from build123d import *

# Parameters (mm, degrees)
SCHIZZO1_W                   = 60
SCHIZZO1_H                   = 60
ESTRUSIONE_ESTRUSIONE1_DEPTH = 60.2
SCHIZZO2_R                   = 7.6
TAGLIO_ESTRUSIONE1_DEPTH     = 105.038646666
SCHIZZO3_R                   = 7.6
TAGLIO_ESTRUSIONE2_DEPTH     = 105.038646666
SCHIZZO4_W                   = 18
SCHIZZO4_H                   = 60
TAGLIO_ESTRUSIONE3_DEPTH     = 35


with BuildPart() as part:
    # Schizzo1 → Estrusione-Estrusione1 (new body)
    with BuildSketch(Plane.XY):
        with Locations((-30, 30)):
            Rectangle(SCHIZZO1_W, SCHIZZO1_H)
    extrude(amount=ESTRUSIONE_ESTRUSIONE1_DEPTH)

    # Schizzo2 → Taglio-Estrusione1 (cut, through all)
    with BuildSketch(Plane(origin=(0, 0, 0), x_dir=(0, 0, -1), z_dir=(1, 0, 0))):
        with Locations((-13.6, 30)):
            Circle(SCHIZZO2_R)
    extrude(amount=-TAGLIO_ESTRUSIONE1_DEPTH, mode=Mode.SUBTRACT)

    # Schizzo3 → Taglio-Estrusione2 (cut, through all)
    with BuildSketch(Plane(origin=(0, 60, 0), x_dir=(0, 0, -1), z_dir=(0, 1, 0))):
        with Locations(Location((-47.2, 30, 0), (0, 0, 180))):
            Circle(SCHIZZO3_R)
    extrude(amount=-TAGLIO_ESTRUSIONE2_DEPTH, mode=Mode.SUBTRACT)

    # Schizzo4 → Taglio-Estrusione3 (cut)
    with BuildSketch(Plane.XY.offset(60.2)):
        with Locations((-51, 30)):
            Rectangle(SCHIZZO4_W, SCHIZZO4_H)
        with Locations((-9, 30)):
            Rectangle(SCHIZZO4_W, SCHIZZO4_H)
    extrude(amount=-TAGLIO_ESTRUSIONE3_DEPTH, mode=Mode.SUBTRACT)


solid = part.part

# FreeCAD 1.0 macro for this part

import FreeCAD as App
import Part
import Sketcher


def add_polygon(sketch, points):
    """Adds a closed chain of lines whose ends are joined by coincident constraints."""
    first, n = sketch.GeometryCount, len(points)
    for a, b in zip(points, points[1:] + points[:1]):
        sketch.addGeometry(Part.LineSegment(App.Vector(*a, 0), App.Vector(*b, 0)), False)
    for i in range(n):
        sketch.addConstraint(Sketcher.Constraint("Coincident", first + i, 2, first + (i + 1) % n, 1))

doc = App.newDocument("Part")
params = doc.addObject("Spreadsheet::Sheet", "Params")
for row, (alias, value) in enumerate([
    ("sketch1_width", "60 mm"),
    ("pad1_length", "60.2 mm"),
    ("sketch2_diameter", "15.2 mm"),
    ("sketch3_diameter", "15.2 mm"),
    ("sketch4_width", "18 mm"),
    ("sketch4_height", "60 mm"),
    ("pocket3_length", "35 mm"),
], start=1):
    params.set(f"A{row}", alias)
    params.set(f"B{row}", "=" + value)
    params.setAlias(f"B{row}", alias)

body = doc.addObject("PartDesign::Body", "Body")

# Sketch on XY plane
sketch1 = body.newObject("Sketcher::SketchObject", "Sketch")
sketch1.AttachmentSupport = (doc.getObject("XY_Plane"), [""])
sketch1.MapMode = "FlatFace"
add_polygon(sketch1, [(-60, 60), (-60, 0), (0, 0), (0, 60)])  # lines 0-3
sketch1.addConstraint([
    Sketcher.Constraint("Vertical", 0),
    Sketcher.Constraint("Horizontal", 1),
    Sketcher.Constraint("Vertical", 2),
    Sketcher.Constraint("Horizontal", 3),
    Sketcher.Constraint("Coincident", 1, 2, -1, 1),
    Sketcher.Constraint("Equal", 3, 0),
    Sketcher.Constraint("DistanceX", 1, 1, 1, 2, 60.0),
])
sketch1.setExpression("Constraints[10]", "Params.sketch1_width")
pad1 = body.newObject("PartDesign::Pad", "Pad")
pad1.Profile = sketch1
pad1.setExpression("Length", "Params.pad1_length")

# Sketch on YZ plane
sketch2 = body.newObject("Sketcher::SketchObject", "Sketch001")
sketch2.AttachmentSupport = (doc.getObject("YZ_Plane"), [""])
sketch2.MapMode = "FlatFace"
sketch2.addGeometry(Part.Circle(App.Vector(30, 13.6, 0), App.Vector(0, 0, 1), 7.6), False)
sketch2.addConstraint([
    Sketcher.Constraint("Diameter", 0, 15.2),
    Sketcher.Constraint("DistanceX", -1, 1, 0, 3, 30.0),
    Sketcher.Constraint("DistanceY", -1, 1, 0, 3, 13.6),
])
sketch2.setExpression("Constraints[0]", "Params.sketch2_diameter")
pocket1 = body.newObject("PartDesign::Pocket", "Pocket")
pocket1.Profile = sketch2
pocket1.Type = "ThroughAll"

# Sketch on XZ plane
sketch3 = body.newObject("Sketcher::SketchObject", "Sketch002")
sketch3.AttachmentSupport = (doc.getObject("XZ_Plane"), [""])
sketch3.MapMode = "FlatFace"
sketch3.AttachmentOffset = App.Placement(App.Vector(0, 0, -60), App.Rotation())
sketch3.addGeometry(Part.Circle(App.Vector(-30, 47.2, 0), App.Vector(0, 0, 1), 7.6), False)
sketch3.addConstraint([
    Sketcher.Constraint("Diameter", 0, 15.2),
    Sketcher.Constraint("DistanceX", 0, 3, -1, 1, 30.0),
    Sketcher.Constraint("DistanceY", -1, 1, 0, 3, 47.2),
])
sketch3.setExpression("Constraints[0]", "Params.sketch3_diameter")
pocket2 = body.newObject("PartDesign::Pocket", "Pocket001")
pocket2.Profile = sketch3
pocket2.Type = "ThroughAll"
pocket2.Reversed = True

# Sketch on XY plane
sketch4 = body.newObject("Sketcher::SketchObject", "Sketch003")
sketch4.AttachmentSupport = (doc.getObject("XY_Plane"), [""])
sketch4.MapMode = "FlatFace"
sketch4.AttachmentOffset = App.Placement(App.Vector(0, 0, 60.2), App.Rotation())
add_polygon(sketch4, [(-60, 60), (-60, 0), (-42, 0), (-42, 60)])  # lines 0-3
add_polygon(sketch4, [(-18, 60), (-18, 0), (0, 0), (0, 60)])  # lines 4-7
sketch4.addConstraint([
    Sketcher.Constraint("Vertical", 0),
    Sketcher.Constraint("Horizontal", 1),
    Sketcher.Constraint("Vertical", 2),
    Sketcher.Constraint("Horizontal", 3),
    Sketcher.Constraint("Vertical", 4),
    Sketcher.Constraint("Horizontal", 5),
    Sketcher.Constraint("Vertical", 6),
    Sketcher.Constraint("Horizontal", 7),
    Sketcher.Constraint("Coincident", 5, 2, -1, 1),
    Sketcher.Constraint("PointOnObject", 0, 2, -1),
    Sketcher.Constraint("Horizontal", 3, 2, 6, 2),
    Sketcher.Constraint("Equal", 3, 5),
    Sketcher.Constraint("DistanceX", 1, 1, 1, 2, 18.0),
    Sketcher.Constraint("DistanceY", 0, 2, 0, 1, 60.0),
    Sketcher.Constraint("DistanceX", 0, 2, -1, 1, 60.0),
])
sketch4.setExpression("Constraints[20]", "Params.sketch4_width")
sketch4.setExpression("Constraints[21]", "Params.sketch4_height")
pocket3 = body.newObject("PartDesign::Pocket", "Pocket002")
pocket3.Profile = sketch4
pocket3.setExpression("Length", "Params.pocket3_length")

doc.recompute()
